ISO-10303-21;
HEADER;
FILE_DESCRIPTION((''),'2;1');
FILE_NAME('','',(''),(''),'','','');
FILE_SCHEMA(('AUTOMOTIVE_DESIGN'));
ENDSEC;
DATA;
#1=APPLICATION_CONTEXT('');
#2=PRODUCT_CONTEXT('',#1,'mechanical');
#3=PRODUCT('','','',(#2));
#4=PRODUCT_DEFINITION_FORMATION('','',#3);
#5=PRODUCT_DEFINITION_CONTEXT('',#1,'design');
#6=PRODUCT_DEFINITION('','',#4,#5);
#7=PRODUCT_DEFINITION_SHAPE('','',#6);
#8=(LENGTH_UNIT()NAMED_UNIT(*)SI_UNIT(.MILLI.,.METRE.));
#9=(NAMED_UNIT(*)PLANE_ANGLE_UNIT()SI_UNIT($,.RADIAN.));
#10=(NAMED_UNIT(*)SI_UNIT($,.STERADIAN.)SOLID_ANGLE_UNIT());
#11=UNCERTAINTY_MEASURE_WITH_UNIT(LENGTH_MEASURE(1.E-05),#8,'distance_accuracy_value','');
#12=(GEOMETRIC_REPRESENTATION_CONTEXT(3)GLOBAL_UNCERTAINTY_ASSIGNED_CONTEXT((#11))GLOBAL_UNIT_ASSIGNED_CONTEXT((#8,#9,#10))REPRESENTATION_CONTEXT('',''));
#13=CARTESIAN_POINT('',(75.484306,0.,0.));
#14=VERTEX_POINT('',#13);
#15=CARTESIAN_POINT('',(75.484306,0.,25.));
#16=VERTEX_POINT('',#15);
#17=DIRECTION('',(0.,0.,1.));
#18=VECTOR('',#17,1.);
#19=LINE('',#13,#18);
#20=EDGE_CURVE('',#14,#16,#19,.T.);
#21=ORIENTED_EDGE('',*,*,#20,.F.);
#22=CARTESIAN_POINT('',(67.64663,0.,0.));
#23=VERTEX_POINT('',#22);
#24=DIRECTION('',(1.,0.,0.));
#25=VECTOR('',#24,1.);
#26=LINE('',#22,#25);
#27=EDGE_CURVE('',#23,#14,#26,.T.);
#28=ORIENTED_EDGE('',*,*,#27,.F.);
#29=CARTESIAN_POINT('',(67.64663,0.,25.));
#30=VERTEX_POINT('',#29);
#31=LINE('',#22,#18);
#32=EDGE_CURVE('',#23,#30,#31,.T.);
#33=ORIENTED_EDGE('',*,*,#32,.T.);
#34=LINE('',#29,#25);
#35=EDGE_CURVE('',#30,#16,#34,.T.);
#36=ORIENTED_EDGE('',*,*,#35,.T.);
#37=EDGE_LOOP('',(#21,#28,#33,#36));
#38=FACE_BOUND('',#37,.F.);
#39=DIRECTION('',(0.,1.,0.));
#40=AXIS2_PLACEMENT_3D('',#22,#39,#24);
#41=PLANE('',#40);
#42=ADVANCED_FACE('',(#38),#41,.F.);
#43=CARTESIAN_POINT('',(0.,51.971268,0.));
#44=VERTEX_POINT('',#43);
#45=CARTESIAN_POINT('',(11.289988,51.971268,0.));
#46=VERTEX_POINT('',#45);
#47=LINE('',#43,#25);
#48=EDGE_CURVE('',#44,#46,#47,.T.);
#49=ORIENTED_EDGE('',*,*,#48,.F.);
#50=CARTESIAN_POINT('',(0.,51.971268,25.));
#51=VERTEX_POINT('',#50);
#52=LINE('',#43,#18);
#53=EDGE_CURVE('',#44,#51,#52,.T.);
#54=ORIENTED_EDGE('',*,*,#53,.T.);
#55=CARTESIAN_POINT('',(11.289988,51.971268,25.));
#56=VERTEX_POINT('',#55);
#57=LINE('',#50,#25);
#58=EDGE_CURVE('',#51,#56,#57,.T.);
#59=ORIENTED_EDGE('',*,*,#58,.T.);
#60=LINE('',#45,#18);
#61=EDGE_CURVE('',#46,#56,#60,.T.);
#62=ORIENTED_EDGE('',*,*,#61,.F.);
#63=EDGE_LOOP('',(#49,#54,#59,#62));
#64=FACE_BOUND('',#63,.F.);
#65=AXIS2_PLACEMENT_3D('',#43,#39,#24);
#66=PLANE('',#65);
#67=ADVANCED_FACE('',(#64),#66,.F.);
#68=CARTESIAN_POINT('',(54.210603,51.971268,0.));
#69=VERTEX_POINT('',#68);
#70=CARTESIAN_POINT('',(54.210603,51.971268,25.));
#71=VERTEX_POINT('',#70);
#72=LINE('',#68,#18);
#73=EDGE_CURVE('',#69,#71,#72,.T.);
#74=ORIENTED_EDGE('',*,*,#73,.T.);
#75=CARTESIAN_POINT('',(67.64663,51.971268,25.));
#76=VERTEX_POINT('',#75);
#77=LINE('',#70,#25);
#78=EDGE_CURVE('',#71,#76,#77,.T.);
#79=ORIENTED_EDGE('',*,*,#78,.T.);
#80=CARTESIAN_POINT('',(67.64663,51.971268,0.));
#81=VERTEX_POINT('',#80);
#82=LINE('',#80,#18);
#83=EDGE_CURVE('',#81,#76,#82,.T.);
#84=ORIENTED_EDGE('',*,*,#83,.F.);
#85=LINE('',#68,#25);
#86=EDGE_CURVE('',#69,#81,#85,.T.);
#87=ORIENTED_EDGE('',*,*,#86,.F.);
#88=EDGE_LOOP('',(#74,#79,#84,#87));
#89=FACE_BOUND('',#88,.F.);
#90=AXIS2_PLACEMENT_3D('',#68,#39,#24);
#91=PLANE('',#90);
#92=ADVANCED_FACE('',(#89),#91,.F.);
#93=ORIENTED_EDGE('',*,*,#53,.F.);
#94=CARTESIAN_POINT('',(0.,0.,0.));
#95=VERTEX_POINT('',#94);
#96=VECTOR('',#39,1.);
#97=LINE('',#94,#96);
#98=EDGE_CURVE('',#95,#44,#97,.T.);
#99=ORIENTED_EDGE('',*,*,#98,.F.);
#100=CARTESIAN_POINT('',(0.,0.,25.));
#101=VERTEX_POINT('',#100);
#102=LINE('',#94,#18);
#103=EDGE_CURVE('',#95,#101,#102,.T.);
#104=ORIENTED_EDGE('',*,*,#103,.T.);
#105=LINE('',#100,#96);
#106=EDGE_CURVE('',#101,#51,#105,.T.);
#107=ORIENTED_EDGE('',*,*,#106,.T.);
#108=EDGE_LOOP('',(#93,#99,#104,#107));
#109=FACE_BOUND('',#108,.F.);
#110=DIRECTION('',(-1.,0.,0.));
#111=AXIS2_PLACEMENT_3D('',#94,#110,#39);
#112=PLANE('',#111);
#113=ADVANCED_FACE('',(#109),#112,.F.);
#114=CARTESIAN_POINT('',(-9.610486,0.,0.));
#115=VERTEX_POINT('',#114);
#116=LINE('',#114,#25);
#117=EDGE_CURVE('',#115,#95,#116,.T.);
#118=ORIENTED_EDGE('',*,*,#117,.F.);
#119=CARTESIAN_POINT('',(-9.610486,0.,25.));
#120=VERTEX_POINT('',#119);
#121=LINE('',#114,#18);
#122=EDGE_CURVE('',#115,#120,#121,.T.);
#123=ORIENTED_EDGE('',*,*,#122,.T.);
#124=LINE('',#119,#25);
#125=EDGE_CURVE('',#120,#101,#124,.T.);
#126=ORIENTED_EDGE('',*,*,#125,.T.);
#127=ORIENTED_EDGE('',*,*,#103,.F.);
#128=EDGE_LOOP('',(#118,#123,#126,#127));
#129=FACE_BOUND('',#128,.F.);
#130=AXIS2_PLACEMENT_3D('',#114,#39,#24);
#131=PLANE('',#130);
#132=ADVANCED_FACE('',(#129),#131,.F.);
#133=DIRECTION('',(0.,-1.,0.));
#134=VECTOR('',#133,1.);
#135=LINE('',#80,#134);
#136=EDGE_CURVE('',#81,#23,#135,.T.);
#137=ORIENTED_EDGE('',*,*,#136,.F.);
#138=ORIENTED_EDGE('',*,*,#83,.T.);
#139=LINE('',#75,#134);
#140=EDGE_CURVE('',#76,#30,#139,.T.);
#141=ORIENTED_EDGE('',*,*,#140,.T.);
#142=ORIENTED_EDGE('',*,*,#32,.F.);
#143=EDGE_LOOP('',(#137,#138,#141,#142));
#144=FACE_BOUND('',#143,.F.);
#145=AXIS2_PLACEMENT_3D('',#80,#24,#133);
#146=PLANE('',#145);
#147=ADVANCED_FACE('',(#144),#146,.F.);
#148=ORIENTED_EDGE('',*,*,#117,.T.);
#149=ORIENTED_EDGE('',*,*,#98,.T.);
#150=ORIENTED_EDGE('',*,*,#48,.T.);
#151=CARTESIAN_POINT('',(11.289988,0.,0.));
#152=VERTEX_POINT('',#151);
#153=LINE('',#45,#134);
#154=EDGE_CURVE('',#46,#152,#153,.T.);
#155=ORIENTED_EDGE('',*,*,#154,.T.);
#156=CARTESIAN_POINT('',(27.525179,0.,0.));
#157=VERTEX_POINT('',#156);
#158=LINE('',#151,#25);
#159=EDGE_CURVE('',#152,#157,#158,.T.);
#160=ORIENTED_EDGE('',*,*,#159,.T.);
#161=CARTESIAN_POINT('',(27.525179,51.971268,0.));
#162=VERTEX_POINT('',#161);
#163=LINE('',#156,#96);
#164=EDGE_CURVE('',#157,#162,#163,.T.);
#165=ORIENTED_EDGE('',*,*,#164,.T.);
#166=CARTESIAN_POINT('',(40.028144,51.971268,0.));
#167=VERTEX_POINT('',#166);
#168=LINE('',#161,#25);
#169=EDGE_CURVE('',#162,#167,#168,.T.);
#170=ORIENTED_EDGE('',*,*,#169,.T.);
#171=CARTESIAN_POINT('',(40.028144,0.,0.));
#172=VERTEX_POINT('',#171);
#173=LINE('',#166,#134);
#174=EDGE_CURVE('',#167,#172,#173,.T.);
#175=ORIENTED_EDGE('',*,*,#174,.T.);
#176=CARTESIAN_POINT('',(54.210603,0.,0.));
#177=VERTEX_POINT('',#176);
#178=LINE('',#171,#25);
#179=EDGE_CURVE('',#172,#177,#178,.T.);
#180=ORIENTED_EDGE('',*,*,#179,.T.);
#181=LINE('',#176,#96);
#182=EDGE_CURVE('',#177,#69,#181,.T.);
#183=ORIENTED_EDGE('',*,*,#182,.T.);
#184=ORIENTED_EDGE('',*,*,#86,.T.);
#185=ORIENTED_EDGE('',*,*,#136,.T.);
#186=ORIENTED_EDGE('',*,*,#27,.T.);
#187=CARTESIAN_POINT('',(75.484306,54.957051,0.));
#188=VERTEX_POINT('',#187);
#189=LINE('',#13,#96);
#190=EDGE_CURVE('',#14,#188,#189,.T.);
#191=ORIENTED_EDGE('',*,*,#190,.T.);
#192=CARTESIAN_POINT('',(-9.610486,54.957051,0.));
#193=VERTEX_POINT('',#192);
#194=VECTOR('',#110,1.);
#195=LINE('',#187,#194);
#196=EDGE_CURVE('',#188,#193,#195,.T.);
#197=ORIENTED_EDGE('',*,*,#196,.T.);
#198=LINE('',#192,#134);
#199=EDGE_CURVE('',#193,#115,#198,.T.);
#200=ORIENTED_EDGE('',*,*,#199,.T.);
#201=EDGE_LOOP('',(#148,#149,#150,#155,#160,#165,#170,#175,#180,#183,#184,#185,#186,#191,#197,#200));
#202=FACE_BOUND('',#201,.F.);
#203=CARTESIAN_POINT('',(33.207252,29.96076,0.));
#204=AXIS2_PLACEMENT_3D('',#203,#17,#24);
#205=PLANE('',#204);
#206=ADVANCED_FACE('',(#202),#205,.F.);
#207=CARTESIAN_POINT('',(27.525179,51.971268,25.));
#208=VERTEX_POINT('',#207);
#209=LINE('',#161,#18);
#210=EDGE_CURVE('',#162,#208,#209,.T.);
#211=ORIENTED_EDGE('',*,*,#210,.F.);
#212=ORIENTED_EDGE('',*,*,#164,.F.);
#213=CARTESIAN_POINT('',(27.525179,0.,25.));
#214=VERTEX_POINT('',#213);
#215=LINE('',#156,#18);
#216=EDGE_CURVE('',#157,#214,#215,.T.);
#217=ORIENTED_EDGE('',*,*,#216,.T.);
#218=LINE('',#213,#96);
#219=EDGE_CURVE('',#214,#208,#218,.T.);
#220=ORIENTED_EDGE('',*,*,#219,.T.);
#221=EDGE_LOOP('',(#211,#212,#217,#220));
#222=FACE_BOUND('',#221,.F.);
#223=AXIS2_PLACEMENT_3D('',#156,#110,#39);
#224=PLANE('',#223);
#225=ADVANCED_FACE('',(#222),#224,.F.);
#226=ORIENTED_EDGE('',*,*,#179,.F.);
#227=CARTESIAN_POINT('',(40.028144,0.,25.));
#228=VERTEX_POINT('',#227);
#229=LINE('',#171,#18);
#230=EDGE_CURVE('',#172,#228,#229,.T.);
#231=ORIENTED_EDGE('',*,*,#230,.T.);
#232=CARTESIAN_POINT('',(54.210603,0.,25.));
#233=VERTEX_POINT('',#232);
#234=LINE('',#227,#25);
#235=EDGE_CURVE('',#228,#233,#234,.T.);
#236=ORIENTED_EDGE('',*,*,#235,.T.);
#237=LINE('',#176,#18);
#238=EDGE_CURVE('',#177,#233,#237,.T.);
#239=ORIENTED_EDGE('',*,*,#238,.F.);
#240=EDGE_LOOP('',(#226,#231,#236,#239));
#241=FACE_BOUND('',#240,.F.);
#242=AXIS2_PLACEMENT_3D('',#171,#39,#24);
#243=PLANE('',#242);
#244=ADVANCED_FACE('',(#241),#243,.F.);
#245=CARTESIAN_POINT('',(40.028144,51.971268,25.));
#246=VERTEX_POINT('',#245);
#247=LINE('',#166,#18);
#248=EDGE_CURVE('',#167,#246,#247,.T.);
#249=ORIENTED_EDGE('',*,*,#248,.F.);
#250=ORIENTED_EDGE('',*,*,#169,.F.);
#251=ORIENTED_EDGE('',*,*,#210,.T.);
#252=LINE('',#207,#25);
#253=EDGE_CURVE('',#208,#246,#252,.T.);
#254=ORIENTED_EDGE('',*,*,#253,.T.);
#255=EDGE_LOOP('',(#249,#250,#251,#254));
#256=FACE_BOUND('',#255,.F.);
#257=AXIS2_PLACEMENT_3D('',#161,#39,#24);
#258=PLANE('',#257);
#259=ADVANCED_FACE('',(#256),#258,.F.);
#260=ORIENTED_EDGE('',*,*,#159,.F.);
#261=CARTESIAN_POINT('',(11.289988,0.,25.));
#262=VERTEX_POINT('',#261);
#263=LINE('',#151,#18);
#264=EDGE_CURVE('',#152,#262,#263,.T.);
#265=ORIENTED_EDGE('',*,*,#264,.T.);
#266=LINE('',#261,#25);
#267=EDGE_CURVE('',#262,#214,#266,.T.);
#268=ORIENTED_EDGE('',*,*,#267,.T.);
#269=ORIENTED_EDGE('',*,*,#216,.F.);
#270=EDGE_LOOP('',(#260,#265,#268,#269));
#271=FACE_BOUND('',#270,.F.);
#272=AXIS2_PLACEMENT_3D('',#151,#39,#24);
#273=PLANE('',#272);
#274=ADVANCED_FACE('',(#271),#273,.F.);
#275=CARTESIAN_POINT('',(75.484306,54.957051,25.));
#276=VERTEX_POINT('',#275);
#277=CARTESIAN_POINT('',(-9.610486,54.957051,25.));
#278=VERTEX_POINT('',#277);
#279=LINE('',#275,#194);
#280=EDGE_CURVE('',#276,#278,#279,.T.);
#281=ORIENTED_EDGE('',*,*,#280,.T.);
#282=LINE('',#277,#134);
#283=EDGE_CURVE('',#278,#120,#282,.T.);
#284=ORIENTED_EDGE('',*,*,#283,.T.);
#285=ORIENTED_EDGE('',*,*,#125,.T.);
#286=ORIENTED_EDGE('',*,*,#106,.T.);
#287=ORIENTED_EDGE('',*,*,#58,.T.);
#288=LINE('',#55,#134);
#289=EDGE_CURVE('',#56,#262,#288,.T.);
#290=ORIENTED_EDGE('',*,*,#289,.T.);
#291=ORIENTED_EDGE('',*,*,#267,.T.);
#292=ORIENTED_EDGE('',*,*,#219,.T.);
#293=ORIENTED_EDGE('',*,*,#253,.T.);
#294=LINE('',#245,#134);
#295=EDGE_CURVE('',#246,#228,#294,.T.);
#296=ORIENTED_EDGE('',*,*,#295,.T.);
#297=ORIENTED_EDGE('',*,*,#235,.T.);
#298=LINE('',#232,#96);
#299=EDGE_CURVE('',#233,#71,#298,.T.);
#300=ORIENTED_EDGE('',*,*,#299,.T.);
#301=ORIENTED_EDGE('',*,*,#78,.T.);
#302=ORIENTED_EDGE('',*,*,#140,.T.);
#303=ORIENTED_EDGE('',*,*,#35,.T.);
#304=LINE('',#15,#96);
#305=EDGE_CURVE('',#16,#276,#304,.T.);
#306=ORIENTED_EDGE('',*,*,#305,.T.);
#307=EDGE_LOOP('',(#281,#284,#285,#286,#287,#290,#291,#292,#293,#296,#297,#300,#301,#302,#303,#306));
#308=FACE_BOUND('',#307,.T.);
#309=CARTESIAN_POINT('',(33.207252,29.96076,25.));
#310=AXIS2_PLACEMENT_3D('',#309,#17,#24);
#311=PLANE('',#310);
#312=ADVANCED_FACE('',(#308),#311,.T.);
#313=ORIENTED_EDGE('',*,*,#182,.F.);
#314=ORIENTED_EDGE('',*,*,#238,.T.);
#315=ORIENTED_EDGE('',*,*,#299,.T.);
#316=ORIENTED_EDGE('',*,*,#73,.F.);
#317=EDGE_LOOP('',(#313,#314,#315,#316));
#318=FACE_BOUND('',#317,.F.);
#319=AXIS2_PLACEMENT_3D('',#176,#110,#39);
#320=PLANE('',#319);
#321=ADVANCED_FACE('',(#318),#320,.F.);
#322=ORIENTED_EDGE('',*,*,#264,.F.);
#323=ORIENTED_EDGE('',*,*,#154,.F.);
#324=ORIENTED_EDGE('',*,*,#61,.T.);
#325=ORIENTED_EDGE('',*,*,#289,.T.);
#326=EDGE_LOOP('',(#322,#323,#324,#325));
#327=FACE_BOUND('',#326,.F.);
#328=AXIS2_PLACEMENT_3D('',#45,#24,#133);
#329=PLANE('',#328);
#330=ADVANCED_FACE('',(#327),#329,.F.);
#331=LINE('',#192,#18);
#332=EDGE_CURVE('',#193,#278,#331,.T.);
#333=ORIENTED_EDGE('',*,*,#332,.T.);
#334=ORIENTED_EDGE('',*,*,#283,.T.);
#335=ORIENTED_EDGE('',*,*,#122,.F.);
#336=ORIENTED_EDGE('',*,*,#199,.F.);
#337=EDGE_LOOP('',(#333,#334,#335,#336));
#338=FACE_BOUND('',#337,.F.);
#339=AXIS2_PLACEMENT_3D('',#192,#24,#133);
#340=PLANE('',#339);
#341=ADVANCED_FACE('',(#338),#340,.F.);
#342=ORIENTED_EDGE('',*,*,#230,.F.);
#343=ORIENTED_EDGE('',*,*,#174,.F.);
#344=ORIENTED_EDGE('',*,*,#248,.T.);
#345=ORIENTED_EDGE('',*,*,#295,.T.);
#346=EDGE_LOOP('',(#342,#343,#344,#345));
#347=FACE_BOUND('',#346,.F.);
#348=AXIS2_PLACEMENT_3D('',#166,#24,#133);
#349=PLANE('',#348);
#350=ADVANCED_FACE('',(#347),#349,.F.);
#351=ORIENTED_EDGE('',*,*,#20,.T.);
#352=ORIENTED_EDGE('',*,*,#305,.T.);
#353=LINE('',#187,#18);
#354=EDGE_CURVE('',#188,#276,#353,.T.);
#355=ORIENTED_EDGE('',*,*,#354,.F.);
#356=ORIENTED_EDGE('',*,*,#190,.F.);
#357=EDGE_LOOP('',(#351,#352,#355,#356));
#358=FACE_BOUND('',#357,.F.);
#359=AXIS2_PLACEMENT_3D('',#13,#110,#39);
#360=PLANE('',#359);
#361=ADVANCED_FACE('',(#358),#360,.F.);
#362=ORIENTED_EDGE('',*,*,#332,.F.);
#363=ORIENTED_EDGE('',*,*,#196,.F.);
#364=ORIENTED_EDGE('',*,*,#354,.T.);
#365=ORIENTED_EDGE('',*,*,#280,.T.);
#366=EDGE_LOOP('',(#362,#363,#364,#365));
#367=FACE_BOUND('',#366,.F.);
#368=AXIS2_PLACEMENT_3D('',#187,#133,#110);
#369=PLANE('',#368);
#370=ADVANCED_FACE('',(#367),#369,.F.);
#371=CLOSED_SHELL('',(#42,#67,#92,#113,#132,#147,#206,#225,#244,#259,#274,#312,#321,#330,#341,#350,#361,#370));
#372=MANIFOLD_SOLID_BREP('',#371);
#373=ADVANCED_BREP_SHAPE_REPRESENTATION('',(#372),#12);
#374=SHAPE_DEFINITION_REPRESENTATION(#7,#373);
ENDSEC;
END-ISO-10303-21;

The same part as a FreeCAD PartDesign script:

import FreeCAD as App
import Part
import Sketcher
from FreeCAD import Vector

doc = App.newDocument("Part")
body = doc.addObject("PartDesign::Body", "Body")

sketch1 = body.newObject("Sketcher::SketchObject", "Sketch")
sketch1.AttachmentSupport = (doc.getObject("XY_Plane"), [""])
sketch1.MapMode = "FlatFace"
sketch1.addGeometry([
    Part.LineSegment(Vector(-9.610486, 0, 0), Vector(0, 0, 0)),
    Part.LineSegment(Vector(0, 0, 0), Vector(0, 51.971268, 0)),
    Part.LineSegment(Vector(0, 51.971268, 0), Vector(11.289988, 51.971268, 0)),
    Part.LineSegment(Vector(11.289988, 51.971268, 0), Vector(11.289988, 0, 0)),
    Part.LineSegment(Vector(11.289988, 0, 0), Vector(27.525179, 0, 0)),
    Part.LineSegment(Vector(27.525179, 0, 0), Vector(27.525179, 51.971268, 0)),
    Part.LineSegment(Vector(27.525179, 51.971268, 0), Vector(40.028144, 51.971268, 0)),
    Part.LineSegment(Vector(40.028144, 51.971268, 0), Vector(40.028144, 0, 0)),
    Part.LineSegment(Vector(40.028144, 0, 0), Vector(54.210603, 0, 0)),
    Part.LineSegment(Vector(54.210603, 0, 0), Vector(54.210603, 51.971268, 0)),
    Part.LineSegment(Vector(54.210603, 51.971268, 0), Vector(67.64663, 51.971268, 0)),
    Part.LineSegment(Vector(67.64663, 51.971268, 0), Vector(67.64663, 0, 0)),
    Part.LineSegment(Vector(67.64663, 0, 0), Vector(75.484306, 0, 0)),
    Part.LineSegment(Vector(75.484306, 0, 0), Vector(75.484306, 54.957051, 0)),
    Part.LineSegment(Vector(75.484306, 54.957051, 0), Vector(-9.610486, 54.957051, 0)),
    Part.LineSegment(Vector(-9.610486, 54.957051, 0), Vector(-9.610486, 0, 0)),
], False)
sketch1.addConstraint([
    Sketcher.Constraint("Coincident", 0, 2, 1, 1),
    Sketcher.Constraint("Coincident", 1, 2, 2, 1),
    Sketcher.Constraint("Coincident", 2, 2, 3, 1),
    Sketcher.Constraint("Coincident", 3, 2, 4, 1),
    Sketcher.Constraint("Coincident", 4, 2, 5, 1),
    Sketcher.Constraint("Coincident", 5, 2, 6, 1),
    Sketcher.Constraint("Coincident", 6, 2, 7, 1),
    Sketcher.Constraint("Coincident", 7, 2, 8, 1),
    Sketcher.Constraint("Coincident", 8, 2, 9, 1),
    Sketcher.Constraint("Coincident", 9, 2, 10, 1),
    Sketcher.Constraint("Coincident", 10, 2, 11, 1),
    Sketcher.Constraint("Coincident", 11, 2, 12, 1),
    Sketcher.Constraint("Coincident", 12, 2, 13, 1),
    Sketcher.Constraint("Coincident", 13, 2, 14, 1),
    Sketcher.Constraint("Coincident", 14, 2, 15, 1),
    Sketcher.Constraint("Coincident", 15, 2, 0, 1),
    Sketcher.Constraint("Horizontal", 0),
    Sketcher.Constraint("Vertical", 1),
    Sketcher.Constraint("Horizontal", 2),
    Sketcher.Constraint("Vertical", 3),
    Sketcher.Constraint("Horizontal", 4),
    Sketcher.Constraint("Vertical", 5),
    Sketcher.Constraint("Horizontal", 6),
    Sketcher.Constraint("Vertical", 7),
    Sketcher.Constraint("Horizontal", 8),
    Sketcher.Constraint("Vertical", 9),
    Sketcher.Constraint("Horizontal", 10),
    Sketcher.Constraint("Vertical", 11),
    Sketcher.Constraint("Horizontal", 12),
    Sketcher.Constraint("Vertical", 13),
    Sketcher.Constraint("Horizontal", 14),
    Sketcher.Constraint("Vertical", 15),
    Sketcher.Constraint("Coincident", 0, 2, -1, 1),
    Sketcher.Constraint("PointOnObject", 3, 2, -1),
    Sketcher.Constraint("PointOnObject", 7, 2, -1),
    Sketcher.Constraint("PointOnObject", 11, 2, -1),
    Sketcher.Constraint("Horizontal", 2, 2, 5, 2),
    Sketcher.Constraint("Horizontal", 6, 2, 9, 2),
    Sketcher.Constraint("DistanceX", 4, 1, 4, 2, 16.235191),
    Sketcher.Constraint("DistanceX", 8, 1, 8, 2, 14.182459),
    Sketcher.Constraint("DistanceX", 14, 2, 14, 1, 85.094792),
    Sketcher.Constraint("DistanceY", 1, 1, 1, 2, 51.971268),
    Sketcher.Constraint("DistanceY", 13, 1, 13, 2, 54.957051),
    Sketcher.Constraint("DistanceX", 0, 1, 0, 2, 9.610486),
    Sketcher.Constraint("DistanceX", 2, 1, 2, 2, 11.289988),
    Sketcher.Constraint("DistanceX", 6, 1, 6, 2, 12.502965),
    Sketcher.Constraint("DistanceX", 10, 1, 10, 2, 13.436027),
])
pad1 = body.newObject("PartDesign::Pad", "Pad")
pad1.Profile = sketch1
pad1.Length = 25

doc.recompute()
